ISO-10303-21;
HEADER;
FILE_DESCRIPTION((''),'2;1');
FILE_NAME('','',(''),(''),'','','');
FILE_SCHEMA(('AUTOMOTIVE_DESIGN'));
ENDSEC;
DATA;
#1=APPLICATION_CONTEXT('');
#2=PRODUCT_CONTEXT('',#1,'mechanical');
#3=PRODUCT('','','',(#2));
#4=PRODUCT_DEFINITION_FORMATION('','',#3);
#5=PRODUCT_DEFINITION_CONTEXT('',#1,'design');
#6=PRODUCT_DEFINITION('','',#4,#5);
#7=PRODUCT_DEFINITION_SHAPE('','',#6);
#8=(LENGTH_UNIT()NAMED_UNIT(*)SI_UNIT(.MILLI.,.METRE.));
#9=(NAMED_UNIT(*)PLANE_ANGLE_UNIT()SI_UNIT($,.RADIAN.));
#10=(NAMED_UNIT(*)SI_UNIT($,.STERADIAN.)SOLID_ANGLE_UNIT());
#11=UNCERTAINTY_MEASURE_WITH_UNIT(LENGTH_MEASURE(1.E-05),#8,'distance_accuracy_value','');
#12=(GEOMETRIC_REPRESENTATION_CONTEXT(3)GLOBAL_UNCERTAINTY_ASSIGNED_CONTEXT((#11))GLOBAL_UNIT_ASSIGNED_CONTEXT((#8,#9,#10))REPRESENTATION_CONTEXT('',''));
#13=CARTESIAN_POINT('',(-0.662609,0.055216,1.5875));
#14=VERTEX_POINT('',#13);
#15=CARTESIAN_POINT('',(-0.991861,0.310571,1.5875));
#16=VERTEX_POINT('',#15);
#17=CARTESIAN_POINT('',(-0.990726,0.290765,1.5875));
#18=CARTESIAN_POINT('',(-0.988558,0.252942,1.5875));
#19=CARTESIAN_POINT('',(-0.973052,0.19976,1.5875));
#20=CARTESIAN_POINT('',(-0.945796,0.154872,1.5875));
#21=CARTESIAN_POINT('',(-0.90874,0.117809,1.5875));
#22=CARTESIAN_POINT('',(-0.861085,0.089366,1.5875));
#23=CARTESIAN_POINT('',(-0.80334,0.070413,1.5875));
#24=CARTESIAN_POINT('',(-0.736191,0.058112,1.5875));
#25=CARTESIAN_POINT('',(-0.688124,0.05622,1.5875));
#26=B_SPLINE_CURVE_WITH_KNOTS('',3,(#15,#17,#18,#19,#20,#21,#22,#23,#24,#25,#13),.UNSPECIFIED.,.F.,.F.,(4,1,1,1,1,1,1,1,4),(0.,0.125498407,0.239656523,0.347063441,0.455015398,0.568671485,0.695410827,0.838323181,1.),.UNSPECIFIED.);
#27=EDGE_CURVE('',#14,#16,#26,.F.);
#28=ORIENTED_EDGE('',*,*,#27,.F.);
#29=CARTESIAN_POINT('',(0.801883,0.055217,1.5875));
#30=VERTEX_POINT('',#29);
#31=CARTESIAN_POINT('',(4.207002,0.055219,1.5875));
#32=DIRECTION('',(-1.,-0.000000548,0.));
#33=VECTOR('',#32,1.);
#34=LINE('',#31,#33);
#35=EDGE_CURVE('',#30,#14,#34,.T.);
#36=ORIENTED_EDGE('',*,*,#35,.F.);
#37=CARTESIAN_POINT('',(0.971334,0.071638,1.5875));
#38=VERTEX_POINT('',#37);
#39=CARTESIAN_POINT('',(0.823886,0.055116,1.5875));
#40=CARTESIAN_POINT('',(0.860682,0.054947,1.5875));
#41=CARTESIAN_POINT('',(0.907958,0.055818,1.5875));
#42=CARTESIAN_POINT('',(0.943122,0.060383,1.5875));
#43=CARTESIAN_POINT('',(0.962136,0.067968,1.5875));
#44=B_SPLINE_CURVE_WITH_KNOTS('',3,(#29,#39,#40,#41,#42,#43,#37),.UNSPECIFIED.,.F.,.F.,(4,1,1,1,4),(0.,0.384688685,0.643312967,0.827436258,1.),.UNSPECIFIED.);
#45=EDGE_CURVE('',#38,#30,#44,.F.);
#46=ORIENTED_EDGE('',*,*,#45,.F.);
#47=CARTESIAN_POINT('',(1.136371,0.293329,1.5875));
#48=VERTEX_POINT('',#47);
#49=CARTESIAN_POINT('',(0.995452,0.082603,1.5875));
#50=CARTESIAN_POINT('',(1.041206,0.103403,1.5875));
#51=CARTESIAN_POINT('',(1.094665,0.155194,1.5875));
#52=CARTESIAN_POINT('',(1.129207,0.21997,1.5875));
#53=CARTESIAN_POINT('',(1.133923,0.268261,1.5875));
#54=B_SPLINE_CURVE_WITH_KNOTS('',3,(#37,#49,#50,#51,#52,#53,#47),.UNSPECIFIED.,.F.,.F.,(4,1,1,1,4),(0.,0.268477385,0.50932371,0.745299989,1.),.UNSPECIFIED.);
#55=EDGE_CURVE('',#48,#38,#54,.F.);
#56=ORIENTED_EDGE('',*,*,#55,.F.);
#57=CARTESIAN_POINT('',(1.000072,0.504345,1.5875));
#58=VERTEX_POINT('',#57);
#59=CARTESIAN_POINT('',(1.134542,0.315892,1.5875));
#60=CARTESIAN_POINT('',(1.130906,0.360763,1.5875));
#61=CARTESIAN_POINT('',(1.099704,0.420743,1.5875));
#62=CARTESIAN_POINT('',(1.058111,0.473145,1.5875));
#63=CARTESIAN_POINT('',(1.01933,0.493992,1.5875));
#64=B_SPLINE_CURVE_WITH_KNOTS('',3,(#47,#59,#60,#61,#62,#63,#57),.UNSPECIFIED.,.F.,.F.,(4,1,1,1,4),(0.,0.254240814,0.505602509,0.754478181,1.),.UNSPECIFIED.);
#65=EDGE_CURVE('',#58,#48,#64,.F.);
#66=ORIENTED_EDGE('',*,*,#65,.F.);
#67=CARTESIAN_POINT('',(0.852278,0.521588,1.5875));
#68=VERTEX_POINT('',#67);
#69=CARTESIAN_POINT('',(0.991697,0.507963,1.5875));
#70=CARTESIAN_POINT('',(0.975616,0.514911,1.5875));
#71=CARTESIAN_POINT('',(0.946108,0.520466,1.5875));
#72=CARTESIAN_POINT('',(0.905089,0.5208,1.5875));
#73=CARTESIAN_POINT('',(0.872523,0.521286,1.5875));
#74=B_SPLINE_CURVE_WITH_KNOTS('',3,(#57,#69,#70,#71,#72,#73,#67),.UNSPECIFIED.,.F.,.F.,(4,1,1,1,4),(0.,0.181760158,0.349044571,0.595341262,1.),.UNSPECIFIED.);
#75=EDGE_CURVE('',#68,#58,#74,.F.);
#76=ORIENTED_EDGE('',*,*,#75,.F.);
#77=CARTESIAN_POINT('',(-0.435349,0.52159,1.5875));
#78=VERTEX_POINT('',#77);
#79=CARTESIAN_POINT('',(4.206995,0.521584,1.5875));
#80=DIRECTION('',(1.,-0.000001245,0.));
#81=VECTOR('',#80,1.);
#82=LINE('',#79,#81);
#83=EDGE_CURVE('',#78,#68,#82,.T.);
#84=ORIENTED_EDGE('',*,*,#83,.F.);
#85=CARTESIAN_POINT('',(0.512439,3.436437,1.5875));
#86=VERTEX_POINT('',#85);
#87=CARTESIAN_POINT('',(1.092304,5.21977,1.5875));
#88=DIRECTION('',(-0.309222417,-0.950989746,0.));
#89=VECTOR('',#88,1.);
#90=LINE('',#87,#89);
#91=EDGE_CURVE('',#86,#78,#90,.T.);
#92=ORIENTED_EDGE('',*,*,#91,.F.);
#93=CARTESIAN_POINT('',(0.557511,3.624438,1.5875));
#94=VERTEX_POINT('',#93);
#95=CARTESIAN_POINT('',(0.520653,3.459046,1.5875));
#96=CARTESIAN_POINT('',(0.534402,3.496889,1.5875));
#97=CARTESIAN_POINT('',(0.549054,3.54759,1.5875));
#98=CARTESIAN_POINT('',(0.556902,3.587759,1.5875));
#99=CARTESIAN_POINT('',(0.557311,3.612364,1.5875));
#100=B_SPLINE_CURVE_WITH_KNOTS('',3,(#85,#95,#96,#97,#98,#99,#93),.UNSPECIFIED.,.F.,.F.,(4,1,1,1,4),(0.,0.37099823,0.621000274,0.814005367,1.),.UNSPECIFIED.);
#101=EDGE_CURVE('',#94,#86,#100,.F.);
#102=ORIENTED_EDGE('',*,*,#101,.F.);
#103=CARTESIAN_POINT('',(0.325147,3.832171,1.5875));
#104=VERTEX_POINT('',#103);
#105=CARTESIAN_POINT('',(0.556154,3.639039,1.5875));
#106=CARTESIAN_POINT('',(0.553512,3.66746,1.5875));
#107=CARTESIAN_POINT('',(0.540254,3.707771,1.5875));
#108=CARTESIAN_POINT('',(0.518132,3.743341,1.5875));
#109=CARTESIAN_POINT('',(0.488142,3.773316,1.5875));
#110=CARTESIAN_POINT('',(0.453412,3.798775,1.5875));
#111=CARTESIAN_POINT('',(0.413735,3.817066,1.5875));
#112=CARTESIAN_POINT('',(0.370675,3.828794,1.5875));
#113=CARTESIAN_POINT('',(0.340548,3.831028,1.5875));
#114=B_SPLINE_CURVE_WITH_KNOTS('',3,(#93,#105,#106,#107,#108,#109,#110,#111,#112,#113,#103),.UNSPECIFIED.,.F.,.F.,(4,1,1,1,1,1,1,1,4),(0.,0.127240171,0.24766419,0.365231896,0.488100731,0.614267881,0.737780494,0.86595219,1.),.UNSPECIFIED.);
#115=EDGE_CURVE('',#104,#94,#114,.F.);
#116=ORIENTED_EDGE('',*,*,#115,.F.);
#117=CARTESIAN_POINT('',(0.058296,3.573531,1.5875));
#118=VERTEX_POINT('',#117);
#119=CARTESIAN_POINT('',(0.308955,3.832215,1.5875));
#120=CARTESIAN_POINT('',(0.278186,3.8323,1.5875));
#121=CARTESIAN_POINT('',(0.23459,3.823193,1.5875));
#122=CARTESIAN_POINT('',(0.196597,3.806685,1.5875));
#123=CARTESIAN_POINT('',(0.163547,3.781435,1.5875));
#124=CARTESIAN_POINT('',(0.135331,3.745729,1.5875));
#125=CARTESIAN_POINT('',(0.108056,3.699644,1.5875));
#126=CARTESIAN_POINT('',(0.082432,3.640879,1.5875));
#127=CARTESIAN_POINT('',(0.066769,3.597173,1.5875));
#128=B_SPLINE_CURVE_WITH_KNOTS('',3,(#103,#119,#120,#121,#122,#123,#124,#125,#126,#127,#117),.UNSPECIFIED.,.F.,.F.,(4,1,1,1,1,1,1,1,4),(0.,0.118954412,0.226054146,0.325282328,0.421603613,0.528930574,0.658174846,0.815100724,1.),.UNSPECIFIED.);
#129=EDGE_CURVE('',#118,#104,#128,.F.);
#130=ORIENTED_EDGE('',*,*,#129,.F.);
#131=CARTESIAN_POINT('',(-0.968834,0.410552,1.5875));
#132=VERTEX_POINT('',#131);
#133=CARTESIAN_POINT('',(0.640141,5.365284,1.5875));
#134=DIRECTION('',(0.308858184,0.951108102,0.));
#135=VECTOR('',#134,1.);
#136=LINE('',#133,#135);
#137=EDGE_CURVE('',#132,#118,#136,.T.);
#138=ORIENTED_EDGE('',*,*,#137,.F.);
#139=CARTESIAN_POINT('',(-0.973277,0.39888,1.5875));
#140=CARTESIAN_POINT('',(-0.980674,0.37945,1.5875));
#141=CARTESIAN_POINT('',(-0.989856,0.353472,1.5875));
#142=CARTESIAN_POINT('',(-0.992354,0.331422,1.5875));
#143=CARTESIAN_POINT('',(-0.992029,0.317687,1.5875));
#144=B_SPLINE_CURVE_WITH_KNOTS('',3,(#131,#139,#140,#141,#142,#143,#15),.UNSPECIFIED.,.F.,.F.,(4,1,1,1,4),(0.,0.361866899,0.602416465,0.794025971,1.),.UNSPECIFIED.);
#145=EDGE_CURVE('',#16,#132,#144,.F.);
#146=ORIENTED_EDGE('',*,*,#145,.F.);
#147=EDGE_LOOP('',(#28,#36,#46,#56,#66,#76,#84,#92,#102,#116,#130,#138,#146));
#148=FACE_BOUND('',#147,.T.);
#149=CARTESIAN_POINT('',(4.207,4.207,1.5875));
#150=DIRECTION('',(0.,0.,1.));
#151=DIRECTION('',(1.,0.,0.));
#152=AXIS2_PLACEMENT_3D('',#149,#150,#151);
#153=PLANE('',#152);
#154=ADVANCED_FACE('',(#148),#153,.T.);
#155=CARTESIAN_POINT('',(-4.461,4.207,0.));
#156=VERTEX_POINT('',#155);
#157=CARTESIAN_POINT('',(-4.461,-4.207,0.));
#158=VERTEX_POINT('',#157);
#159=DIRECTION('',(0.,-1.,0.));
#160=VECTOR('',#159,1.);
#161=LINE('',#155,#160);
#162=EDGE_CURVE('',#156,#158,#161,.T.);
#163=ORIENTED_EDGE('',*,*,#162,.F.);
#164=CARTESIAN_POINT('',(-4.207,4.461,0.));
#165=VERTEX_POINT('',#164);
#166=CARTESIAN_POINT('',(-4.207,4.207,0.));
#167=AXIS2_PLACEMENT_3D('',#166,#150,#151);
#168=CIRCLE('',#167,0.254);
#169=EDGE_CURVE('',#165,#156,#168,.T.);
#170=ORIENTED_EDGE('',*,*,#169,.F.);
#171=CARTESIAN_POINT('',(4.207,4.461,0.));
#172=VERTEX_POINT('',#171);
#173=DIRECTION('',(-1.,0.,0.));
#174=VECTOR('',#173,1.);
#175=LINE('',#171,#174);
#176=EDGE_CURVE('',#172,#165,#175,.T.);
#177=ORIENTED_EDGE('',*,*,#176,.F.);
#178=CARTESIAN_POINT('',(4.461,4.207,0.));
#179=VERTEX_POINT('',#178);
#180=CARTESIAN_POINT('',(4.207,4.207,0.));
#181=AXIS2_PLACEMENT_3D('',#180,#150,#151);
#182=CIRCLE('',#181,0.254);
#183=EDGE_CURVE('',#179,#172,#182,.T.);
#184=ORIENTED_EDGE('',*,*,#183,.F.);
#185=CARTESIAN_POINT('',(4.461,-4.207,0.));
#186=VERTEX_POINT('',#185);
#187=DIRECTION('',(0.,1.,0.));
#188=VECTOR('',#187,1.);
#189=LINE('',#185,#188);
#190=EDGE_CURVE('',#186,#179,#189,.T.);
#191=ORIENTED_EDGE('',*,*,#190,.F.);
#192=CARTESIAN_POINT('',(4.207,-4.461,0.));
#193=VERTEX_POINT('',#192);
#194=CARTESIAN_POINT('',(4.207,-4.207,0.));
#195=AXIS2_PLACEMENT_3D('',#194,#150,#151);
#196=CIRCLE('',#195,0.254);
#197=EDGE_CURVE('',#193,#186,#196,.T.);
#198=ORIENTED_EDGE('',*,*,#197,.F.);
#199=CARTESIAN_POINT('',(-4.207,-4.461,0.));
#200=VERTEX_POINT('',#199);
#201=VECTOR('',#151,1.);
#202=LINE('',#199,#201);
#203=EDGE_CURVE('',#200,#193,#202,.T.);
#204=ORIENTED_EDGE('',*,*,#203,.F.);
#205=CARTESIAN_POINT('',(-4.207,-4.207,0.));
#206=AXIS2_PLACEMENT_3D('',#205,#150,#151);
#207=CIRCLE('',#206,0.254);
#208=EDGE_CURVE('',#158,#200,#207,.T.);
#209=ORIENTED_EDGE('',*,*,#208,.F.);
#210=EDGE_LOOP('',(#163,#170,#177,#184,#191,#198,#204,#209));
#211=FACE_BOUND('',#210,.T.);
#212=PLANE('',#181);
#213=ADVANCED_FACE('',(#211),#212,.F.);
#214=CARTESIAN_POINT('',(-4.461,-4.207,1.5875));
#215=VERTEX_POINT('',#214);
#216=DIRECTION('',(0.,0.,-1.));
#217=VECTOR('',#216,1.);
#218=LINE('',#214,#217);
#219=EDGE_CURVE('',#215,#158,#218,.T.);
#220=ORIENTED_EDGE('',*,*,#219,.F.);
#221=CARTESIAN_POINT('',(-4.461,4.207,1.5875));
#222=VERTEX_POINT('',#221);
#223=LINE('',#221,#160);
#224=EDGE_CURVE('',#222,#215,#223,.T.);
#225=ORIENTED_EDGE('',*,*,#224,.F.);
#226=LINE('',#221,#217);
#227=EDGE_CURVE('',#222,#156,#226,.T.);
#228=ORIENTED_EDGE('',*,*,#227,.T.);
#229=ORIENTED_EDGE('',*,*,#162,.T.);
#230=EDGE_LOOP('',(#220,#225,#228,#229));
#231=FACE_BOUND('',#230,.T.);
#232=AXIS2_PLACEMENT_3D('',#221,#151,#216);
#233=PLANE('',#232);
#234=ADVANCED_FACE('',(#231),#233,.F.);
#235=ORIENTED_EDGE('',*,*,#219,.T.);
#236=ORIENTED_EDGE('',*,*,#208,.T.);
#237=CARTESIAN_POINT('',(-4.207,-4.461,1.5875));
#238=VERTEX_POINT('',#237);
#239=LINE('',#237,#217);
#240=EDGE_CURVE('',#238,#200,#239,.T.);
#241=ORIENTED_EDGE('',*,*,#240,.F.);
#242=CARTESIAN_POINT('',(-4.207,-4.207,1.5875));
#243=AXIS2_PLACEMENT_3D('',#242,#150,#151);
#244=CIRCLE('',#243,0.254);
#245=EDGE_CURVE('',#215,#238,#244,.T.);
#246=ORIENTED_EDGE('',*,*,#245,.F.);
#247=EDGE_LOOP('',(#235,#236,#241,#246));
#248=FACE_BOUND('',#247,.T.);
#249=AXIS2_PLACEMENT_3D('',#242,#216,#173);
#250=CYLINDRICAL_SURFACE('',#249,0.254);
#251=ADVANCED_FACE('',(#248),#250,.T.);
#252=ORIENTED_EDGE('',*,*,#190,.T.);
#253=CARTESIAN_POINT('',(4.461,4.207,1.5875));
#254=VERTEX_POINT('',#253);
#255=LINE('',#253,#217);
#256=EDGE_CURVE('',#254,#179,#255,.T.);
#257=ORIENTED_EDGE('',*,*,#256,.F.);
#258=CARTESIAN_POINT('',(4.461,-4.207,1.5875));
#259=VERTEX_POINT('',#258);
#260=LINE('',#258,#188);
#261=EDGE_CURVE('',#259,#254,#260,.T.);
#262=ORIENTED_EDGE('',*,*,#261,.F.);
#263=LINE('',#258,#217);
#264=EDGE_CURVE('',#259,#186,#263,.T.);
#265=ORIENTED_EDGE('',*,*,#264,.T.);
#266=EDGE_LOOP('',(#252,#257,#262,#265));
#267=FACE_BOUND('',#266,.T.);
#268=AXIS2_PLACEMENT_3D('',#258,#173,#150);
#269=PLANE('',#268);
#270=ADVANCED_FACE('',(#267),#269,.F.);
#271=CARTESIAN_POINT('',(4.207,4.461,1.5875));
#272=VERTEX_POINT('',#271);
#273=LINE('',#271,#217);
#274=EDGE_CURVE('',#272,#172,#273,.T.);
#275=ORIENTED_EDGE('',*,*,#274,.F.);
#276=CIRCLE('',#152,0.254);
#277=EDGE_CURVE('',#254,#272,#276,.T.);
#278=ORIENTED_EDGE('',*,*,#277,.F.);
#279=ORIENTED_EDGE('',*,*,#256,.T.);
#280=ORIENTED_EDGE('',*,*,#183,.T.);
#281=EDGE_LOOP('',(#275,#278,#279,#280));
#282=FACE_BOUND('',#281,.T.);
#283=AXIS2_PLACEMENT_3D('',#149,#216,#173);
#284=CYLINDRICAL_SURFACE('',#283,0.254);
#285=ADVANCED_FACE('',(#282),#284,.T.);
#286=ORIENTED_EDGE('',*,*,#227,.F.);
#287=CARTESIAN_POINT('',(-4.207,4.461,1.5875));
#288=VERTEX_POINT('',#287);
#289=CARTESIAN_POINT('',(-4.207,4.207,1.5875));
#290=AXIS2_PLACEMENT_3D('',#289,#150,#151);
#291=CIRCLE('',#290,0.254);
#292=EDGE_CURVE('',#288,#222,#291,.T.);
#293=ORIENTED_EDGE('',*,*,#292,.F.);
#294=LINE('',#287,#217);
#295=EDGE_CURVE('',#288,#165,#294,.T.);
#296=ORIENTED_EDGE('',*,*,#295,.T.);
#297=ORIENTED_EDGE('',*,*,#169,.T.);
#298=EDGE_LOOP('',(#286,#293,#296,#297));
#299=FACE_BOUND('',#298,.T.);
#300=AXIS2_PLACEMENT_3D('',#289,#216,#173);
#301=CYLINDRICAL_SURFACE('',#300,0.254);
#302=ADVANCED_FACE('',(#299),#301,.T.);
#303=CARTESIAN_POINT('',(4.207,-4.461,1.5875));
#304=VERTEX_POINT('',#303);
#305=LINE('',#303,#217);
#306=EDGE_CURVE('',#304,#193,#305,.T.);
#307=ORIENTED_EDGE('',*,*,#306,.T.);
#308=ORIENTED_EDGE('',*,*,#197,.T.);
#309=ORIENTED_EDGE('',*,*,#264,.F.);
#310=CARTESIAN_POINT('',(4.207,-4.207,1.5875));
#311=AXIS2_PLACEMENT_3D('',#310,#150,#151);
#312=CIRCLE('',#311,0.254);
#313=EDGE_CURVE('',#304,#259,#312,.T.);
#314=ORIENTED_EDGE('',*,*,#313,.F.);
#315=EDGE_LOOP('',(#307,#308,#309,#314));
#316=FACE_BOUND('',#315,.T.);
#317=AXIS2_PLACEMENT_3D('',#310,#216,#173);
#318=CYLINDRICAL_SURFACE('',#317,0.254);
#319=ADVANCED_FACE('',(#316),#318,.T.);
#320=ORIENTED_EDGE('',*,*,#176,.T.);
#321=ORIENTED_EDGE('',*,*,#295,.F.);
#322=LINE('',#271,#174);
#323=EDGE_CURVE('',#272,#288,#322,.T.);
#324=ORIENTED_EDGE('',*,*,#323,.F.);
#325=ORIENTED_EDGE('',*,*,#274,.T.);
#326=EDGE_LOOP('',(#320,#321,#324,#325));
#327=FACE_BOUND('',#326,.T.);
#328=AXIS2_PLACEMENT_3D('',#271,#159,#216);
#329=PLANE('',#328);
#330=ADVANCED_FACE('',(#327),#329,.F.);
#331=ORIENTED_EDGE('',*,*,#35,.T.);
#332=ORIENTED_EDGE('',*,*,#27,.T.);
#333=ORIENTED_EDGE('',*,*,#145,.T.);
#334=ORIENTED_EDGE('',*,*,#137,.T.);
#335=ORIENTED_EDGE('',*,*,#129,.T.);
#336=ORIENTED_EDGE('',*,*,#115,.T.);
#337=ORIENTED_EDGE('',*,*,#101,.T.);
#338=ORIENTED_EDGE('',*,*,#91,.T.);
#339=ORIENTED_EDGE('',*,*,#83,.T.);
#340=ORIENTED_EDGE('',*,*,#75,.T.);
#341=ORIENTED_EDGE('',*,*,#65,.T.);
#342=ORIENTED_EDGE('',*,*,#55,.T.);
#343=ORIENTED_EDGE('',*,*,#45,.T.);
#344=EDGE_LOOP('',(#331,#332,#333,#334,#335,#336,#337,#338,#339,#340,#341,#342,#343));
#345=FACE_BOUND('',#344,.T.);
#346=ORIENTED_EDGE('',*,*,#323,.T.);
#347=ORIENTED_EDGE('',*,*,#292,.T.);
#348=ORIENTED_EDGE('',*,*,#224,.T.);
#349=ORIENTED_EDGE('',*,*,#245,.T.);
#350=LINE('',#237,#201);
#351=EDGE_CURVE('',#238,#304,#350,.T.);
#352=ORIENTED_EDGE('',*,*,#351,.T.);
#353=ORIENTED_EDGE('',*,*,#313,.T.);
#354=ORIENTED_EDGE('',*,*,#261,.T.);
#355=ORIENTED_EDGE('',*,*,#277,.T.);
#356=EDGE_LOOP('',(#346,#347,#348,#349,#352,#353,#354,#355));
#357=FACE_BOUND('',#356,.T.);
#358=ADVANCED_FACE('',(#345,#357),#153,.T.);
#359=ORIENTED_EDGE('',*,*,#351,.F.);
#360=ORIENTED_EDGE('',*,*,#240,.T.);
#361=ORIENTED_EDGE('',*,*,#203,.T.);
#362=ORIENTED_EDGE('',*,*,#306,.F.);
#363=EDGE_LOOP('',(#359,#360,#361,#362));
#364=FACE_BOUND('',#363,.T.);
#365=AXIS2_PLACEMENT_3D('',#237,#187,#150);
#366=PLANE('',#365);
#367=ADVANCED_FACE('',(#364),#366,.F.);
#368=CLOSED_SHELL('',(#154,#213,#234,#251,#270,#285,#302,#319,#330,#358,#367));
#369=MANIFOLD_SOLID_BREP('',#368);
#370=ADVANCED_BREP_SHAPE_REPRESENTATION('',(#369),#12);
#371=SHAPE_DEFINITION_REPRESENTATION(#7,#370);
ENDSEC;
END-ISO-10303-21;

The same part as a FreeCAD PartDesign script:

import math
import FreeCAD as App
import Part
import Sketcher

V = App.Vector
Q = App.Units.Quantity

doc = App.newDocument("Part")
body = doc.addObject("PartDesign::Body", "Body")

sketch1 = body.newObject("Sketcher::SketchObject", "Sketch")
sketch1.AttachmentSupport = (doc.getObject("XY_Plane"), [""])
sketch1.MapMode = "FlatFace"
sketch1.addGeometry(Part.LineSegment(V(4.21, 4.46, 0), V(-4.21, 4.46, 0)), False)
sketch1.addGeometry(Part.ArcOfCircle(Part.Circle(V(-4.21, 4.21, 0), V(0, 0, 1), 0.25), math.radians(90), math.radians(180)), False)
sketch1.addGeometry(Part.LineSegment(V(-4.46, 4.21, 0), V(-4.46, -4.21, 0)), False)
sketch1.addGeometry(Part.ArcOfCircle(Part.Circle(V(-4.21, -4.21, 0), V(0, 0, 1), 0.25), math.radians(-180), math.radians(-90)), False)
sketch1.addGeometry(Part.LineSegment(V(-4.21, -4.46, 0), V(4.21, -4.46, 0)), False)
sketch1.addGeometry(Part.ArcOfCircle(Part.Circle(V(4.21, -4.21, 0), V(0, 0, 1), 0.25), math.radians(-90), math.radians(0)), False)
sketch1.addGeometry(Part.LineSegment(V(4.46, -4.21, 0), V(4.46, 4.21, 0)), False)
sketch1.addGeometry(Part.ArcOfCircle(Part.Circle(V(4.21, 4.21, 0), V(0, 0, 1), 0.25), math.radians(0), math.radians(90)), False)
sketch1.addConstraint(Sketcher.Constraint("Tangent", 0, 2, 1, 1))
sketch1.addConstraint(Sketcher.Constraint("Tangent", 1, 2, 2, 1))
sketch1.addConstraint(Sketcher.Constraint("Tangent", 2, 2, 3, 1))
sketch1.addConstraint(Sketcher.Constraint("Tangent", 3, 2, 4, 1))
sketch1.addConstraint(Sketcher.Constraint("Tangent", 4, 2, 5, 1))
sketch1.addConstraint(Sketcher.Constraint("Tangent", 5, 2, 6, 1))
sketch1.addConstraint(Sketcher.Constraint("Tangent", 6, 2, 7, 1))
sketch1.addConstraint(Sketcher.Constraint("Tangent", 7, 2, 0, 1))
sketch1.addConstraint(Sketcher.Constraint("Horizontal", 0))
sketch1.addConstraint(Sketcher.Constraint("Vertical", 2))
sketch1.addConstraint(Sketcher.Constraint("Horizontal", 4))
sketch1.addConstraint(Sketcher.Constraint("Vertical", 6))
sketch1.addConstraint(Sketcher.Constraint("Equal", 1, 3))
sketch1.addConstraint(Sketcher.Constraint("Equal", 3, 5))
sketch1.addConstraint(Sketcher.Constraint("Equal", 5, 7))
sketch1.addConstraint(Sketcher.Constraint("Symmetric", 1, 3, 5, 3, -1, 1))
sketch1.addConstraint(Sketcher.Constraint("Equal", 4, 2))
sketch1.addConstraint(Sketcher.Constraint("Radius", 1, Q("0.01 in")))
sketch1.addConstraint(Sketcher.Constraint("DistanceX", 0, 2, 0, 1, Q("8.414 mm")))
pad1 = body.newObject("PartDesign::Pad", "Pad")
pad1.Profile = sketch1
pad1.Length = Q("0.0625 in")

doc.recompute()
